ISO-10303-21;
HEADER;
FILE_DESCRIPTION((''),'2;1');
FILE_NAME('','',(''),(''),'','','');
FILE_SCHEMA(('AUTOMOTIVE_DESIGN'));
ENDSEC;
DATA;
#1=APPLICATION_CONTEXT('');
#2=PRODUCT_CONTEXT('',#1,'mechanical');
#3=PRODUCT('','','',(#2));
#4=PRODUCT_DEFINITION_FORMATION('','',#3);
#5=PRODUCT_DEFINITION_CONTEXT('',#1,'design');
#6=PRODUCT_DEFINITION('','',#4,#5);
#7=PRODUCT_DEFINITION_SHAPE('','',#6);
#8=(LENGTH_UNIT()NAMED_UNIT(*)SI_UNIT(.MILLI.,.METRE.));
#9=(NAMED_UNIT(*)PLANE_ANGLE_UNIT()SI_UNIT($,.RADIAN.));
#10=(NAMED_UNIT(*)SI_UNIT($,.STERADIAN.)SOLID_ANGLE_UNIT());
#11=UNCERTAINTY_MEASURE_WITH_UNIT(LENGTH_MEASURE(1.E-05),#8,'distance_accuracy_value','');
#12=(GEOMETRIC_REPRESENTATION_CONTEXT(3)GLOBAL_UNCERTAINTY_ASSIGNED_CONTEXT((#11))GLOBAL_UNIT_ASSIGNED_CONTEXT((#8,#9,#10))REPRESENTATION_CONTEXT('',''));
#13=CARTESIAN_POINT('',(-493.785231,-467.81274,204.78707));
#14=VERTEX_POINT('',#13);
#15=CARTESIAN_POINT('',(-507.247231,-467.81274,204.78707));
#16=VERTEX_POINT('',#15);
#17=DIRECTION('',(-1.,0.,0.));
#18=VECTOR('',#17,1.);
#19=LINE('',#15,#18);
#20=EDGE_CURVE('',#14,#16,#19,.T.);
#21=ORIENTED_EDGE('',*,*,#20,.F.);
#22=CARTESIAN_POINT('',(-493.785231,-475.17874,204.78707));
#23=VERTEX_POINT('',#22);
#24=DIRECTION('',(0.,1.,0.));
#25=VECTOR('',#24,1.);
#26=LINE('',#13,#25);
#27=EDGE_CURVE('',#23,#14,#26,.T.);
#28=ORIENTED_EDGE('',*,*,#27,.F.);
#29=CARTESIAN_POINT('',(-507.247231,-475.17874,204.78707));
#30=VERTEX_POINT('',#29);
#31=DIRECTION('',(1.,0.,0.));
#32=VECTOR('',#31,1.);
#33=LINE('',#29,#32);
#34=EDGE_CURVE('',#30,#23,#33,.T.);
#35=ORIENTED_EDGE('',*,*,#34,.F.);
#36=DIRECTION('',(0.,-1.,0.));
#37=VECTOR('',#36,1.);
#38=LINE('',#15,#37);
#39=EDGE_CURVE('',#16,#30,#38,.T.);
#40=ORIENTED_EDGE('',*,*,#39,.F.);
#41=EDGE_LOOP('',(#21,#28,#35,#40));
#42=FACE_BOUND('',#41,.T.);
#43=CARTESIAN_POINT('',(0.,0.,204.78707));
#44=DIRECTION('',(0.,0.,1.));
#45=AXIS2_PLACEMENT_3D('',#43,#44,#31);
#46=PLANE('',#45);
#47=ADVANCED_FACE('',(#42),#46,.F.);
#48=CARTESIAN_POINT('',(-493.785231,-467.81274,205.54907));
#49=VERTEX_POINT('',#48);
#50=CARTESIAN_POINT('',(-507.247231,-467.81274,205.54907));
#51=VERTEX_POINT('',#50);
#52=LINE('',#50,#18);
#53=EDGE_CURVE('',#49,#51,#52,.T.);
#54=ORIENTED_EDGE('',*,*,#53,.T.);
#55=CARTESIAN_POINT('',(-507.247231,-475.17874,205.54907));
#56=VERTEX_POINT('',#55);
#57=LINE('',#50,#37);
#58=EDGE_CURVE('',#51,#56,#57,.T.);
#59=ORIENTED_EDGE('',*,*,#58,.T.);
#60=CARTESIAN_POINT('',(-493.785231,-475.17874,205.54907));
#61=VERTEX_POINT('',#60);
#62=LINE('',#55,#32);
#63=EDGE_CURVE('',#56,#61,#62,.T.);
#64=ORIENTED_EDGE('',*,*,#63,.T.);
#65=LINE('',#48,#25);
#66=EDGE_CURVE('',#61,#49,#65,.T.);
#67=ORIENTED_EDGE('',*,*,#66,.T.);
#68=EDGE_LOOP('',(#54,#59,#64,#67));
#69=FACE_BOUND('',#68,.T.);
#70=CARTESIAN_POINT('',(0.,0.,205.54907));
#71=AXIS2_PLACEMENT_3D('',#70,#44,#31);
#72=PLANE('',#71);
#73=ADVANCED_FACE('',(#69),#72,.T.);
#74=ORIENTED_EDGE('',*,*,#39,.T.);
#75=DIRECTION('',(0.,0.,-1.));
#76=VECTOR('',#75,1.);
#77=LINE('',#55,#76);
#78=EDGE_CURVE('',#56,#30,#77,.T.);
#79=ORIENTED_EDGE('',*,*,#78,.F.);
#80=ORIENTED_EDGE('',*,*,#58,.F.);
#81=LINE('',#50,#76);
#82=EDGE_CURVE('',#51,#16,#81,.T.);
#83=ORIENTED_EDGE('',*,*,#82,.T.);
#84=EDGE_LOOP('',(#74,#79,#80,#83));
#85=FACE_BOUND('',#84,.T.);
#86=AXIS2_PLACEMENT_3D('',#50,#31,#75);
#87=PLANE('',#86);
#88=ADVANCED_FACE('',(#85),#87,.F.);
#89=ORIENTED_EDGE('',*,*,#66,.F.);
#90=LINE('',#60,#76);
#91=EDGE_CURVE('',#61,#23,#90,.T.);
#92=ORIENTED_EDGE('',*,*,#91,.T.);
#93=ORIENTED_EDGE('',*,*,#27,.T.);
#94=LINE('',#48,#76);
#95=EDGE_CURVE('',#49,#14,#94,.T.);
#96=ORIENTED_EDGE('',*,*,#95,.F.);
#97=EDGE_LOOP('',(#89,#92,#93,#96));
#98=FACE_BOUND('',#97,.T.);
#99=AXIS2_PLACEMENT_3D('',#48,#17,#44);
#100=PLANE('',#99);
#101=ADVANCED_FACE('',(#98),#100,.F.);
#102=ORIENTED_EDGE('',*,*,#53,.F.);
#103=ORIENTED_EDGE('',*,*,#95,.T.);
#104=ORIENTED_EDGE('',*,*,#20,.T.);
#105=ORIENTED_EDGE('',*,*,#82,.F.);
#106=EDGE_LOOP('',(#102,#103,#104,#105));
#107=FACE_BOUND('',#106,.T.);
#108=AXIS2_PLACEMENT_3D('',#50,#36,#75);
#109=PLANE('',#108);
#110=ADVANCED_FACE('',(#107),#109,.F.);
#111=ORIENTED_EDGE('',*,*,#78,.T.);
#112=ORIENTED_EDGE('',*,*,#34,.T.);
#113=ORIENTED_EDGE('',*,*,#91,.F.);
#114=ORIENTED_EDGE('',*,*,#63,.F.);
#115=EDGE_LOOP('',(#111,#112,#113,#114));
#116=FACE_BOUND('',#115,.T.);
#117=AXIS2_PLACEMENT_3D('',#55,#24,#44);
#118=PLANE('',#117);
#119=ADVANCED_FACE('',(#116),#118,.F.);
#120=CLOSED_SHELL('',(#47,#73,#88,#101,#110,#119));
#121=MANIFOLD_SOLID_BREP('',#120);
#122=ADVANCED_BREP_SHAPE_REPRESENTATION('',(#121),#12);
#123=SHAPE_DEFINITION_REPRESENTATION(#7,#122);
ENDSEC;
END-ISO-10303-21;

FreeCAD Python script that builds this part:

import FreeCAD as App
import Part
import Sketcher

V = App.Vector
Q = App.Units.Quantity


def add_polygon(sketch, points):
    """Adds a closed chain of lines whose ends are joined by coincident constraints."""
    first, n = sketch.GeometryCount, len(points)
    for a, b in zip(points, points[1:] + points[:1]):
        sketch.addGeometry(Part.LineSegment(App.Vector(*a, 0), App.Vector(*b, 0)), False)
    for i in range(n):
        sketch.addConstraint(Sketcher.Constraint("Coincident", first + i, 2, first + (i + 1) % n, 1))

doc = App.newDocument("Part")
body = doc.addObject("PartDesign::Body", "Body")

# Sketch on XY plane
sketch1 = doc.addObject("Sketcher::SketchObject", "Sketch")
body.addObject(sketch1)
sketch1.AttachmentSupport = (doc.XY_Plane, [""])
sketch1.MapMode = "FlatFace"
sketch1.AttachmentOffset = App.Placement(V(0, 0, 204.78707), App.Rotation())
add_polygon(sketch1, [(-507.247231, -467.81274), (-507.247231, -475.17874), (-493.785231, -475.17874), (-493.785231, -467.81274)])  # lines 0-3
sketch1.addConstraint(Sketcher.Constraint("Vertical", 0))
sketch1.addConstraint(Sketcher.Constraint("Horizontal", 1))
sketch1.addConstraint(Sketcher.Constraint("Vertical", 2))
sketch1.addConstraint(Sketcher.Constraint("Horizontal", 3))
sketch1.addConstraint(Sketcher.Constraint("DistanceX", 1, 1, 1, 2, Q("0.53 in")))
sketch1.addConstraint(Sketcher.Constraint("DistanceY", 0, 2, 0, 1, Q("0.29 in")))
sketch1.addConstraint(Sketcher.Constraint("DistanceX", 0, 2, -1, 1, Q("507.247231 mm")))
sketch1.addConstraint(Sketcher.Constraint("DistanceY", 0, 2, -1, 1, Q("475.17874 mm")))
pad1 = doc.addObject("PartDesign::Pad", "Pad")
body.addObject(pad1)
pad1.Profile = sketch1
pad1.Length = Q("0.03 in")

doc.recompute()
